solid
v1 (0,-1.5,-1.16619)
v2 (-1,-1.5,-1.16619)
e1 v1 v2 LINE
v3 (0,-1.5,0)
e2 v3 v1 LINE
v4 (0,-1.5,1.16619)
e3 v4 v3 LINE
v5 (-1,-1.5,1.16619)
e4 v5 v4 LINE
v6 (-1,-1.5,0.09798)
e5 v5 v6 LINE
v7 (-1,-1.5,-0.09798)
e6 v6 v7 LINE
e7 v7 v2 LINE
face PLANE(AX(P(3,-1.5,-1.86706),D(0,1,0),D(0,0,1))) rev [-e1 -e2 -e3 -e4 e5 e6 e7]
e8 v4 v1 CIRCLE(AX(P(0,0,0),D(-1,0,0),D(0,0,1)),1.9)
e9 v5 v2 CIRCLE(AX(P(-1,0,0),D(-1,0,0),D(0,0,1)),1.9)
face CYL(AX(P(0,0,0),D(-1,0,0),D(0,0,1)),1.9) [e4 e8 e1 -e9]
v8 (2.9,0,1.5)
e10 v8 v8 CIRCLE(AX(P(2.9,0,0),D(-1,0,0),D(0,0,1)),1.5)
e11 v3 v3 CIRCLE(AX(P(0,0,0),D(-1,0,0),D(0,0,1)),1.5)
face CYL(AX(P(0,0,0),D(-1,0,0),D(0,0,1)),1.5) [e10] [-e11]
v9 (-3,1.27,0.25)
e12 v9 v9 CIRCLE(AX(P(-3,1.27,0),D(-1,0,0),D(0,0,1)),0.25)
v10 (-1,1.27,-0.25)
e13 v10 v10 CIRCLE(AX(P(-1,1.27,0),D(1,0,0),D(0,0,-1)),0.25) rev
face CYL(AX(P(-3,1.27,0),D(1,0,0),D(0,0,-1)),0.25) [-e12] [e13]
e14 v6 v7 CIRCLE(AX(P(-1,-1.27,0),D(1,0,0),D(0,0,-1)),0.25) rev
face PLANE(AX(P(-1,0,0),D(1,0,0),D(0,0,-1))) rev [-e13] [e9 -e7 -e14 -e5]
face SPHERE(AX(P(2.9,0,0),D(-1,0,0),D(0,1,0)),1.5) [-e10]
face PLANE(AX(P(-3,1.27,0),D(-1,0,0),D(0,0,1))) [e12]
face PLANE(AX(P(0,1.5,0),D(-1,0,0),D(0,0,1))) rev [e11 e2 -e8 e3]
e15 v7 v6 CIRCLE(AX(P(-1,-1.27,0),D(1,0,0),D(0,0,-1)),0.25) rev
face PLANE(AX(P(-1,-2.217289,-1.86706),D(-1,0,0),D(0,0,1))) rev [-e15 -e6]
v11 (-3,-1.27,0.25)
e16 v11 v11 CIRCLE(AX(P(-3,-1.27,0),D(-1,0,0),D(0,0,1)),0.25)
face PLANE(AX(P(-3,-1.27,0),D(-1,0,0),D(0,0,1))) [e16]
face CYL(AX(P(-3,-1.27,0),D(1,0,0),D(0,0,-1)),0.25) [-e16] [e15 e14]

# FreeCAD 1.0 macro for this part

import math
import FreeCAD as App
import Part
import Sketcher
from FreeCAD import Vector
Q = App.Units.Quantity

doc = App.newDocument("Part")
body = doc.addObject("PartDesign::Body", "Body")

# Sketch on XY plane
sketch1 = body.newObject("Sketcher::SketchObject", "Sketch")
sketch1.AttachmentSupport = (doc.getObject("XY_Plane"), [""])
sketch1.MapMode = "FlatFace"
sketch1.addGeometry([
    Part.ArcOfCircle(Part.Circle(Vector(2.9, 0, 0), Vector(0, 0, 1), 1.5), math.radians(0), math.radians(90)),  # 0
    Part.LineSegment(Vector(2.9, 1.5, 0), Vector(0, 1.5, 0)),  # 1
    Part.LineSegment(Vector(0, 1.5, 0), Vector(0, 1.9, 0)),  # 2
    Part.LineSegment(Vector(0, 1.9, 0), Vector(-1, 1.9, 0)),  # 3
    Part.LineSegment(Vector(-1, 1.9, 0), Vector(-1, 0, 0)),  # 4
    Part.LineSegment(Vector(-1, 0, 0), Vector(4.4, 0, 0)),  # 5
], False)
sketch1.addConstraint([
    Sketcher.Constraint("Tangent", 0, 2, 1, 1),
    Sketcher.Constraint("Coincident", 1, 2, 2, 1),
    Sketcher.Constraint("Coincident", 2, 2, 3, 1),
    Sketcher.Constraint("Coincident", 3, 2, 4, 1),
    Sketcher.Constraint("Coincident", 4, 2, 5, 1),
    Sketcher.Constraint("Coincident", 5, 2, 0, 1),
    Sketcher.Constraint("Horizontal", 1),
    Sketcher.Constraint("Vertical", 2),
    Sketcher.Constraint("Horizontal", 3),
    Sketcher.Constraint("Vertical", 4),
    Sketcher.Constraint("Horizontal", 5),
    Sketcher.Constraint("PointOnObject", 0, 3, -1),
    Sketcher.Constraint("PointOnObject", 1, 2, -2),
    Sketcher.Constraint("PointOnObject", 4, 2, -1),
    Sketcher.Constraint("Radius", 0, Q("1.5 mm")),
    Sketcher.Constraint("DistanceX", 3, 2, 3, 1, Q("1 mm")),
    Sketcher.Constraint("DistanceX", 1, 2, 1, 1, Q("2.9 mm")),
    Sketcher.Constraint("DistanceY", 2, 1, 2, 2, Q("0.4 mm")),
])
revolution = body.newObject("PartDesign::Revolution", "Revolution")
revolution.Profile = sketch1
revolution.ReferenceAxis = (sketch1, ["H_Axis"])
revolution.Angle = 360

# Sketch on YZ plane
sketch2 = body.newObject("Sketcher::SketchObject", "Sketch001")
sketch2.AttachmentSupport = (doc.getObject("YZ_Plane"), [""])
sketch2.MapMode = "FlatFace"
sketch2.AttachmentOffset = App.Placement(Vector(0, 0, -1), App.Rotation())
sketch2.addGeometry([
    Part.Circle(Vector(1.27, 0, 0), Vector(0, 0, 1), 0.25),
    Part.Circle(Vector(-1.27, 0, 0), Vector(0, 0, 1), 0.25),
], False)
sketch2.addConstraint([
    Sketcher.Constraint("Equal", 0, 1),
    Sketcher.Constraint("Symmetric", 0, 3, 1, 3, -1, 1),
    Sketcher.Constraint("PointOnObject", 0, 3, -1),
    Sketcher.Constraint("Diameter", 0, Q("0.5 mm")),
    Sketcher.Constraint("DistanceX", -1, 1, 0, 3, Q("1.27 mm")),
])
pad1 = body.newObject("PartDesign::Pad", "Pad")
pad1.Profile = sketch2
pad1.Length = 2
pad1.Reversed = True

# Sketch on YZ plane
sketch3 = body.newObject("Sketcher::SketchObject", "Sketch002")
sketch3.AttachmentSupport = (doc.getObject("YZ_Plane"), [""])
sketch3.MapMode = "FlatFace"
sketch3.AttachmentOffset = App.Placement(Vector(0, 0, -1), App.Rotation())
sketch3.addGeometry([
    Part.LineSegment(Vector(-1.5, -1.86706, 0), Vector(-2.217289, -1.86706, 0)),
    Part.LineSegment(Vector(-2.217289, -1.86706, 0), Vector(-2.217289, 1.935625, 0)),
    Part.LineSegment(Vector(-2.217289, 1.935625, 0), Vector(-1.5, 1.935625, 0)),
    Part.LineSegment(Vector(-1.5, 1.935625, 0), Vector(-1.5, -1.86706, 0)),
], False)
sketch3.addConstraint([
    Sketcher.Constraint("Coincident", 0, 2, 1, 1),
    Sketcher.Constraint("Coincident", 1, 2, 2, 1),
    Sketcher.Constraint("Coincident", 2, 2, 3, 1),
    Sketcher.Constraint("Coincident", 3, 2, 0, 1),
    Sketcher.Constraint("Horizontal", 0),
    Sketcher.Constraint("Vertical", 1),
    Sketcher.Constraint("Horizontal", 2),
    Sketcher.Constraint("Vertical", 3),
    Sketcher.Constraint("DistanceX", 2, 2, -1, 1, Q("1.5 mm")),
    Sketcher.Constraint("DistanceX", 0, 2, 0, 1, Q("0.717289 mm")),
    Sketcher.Constraint("DistanceY", 1, 1, 1, 2, Q("3.802685 mm")),
    Sketcher.Constraint("DistanceY", 0, 2, -1, 1, Q("1.86706 mm")),
])
pocket1 = body.newObject("PartDesign::Pocket", "Pocket")
pocket1.Profile = sketch3
pocket1.Length = 4
pocket1.Reversed = True

doc.recompute()
